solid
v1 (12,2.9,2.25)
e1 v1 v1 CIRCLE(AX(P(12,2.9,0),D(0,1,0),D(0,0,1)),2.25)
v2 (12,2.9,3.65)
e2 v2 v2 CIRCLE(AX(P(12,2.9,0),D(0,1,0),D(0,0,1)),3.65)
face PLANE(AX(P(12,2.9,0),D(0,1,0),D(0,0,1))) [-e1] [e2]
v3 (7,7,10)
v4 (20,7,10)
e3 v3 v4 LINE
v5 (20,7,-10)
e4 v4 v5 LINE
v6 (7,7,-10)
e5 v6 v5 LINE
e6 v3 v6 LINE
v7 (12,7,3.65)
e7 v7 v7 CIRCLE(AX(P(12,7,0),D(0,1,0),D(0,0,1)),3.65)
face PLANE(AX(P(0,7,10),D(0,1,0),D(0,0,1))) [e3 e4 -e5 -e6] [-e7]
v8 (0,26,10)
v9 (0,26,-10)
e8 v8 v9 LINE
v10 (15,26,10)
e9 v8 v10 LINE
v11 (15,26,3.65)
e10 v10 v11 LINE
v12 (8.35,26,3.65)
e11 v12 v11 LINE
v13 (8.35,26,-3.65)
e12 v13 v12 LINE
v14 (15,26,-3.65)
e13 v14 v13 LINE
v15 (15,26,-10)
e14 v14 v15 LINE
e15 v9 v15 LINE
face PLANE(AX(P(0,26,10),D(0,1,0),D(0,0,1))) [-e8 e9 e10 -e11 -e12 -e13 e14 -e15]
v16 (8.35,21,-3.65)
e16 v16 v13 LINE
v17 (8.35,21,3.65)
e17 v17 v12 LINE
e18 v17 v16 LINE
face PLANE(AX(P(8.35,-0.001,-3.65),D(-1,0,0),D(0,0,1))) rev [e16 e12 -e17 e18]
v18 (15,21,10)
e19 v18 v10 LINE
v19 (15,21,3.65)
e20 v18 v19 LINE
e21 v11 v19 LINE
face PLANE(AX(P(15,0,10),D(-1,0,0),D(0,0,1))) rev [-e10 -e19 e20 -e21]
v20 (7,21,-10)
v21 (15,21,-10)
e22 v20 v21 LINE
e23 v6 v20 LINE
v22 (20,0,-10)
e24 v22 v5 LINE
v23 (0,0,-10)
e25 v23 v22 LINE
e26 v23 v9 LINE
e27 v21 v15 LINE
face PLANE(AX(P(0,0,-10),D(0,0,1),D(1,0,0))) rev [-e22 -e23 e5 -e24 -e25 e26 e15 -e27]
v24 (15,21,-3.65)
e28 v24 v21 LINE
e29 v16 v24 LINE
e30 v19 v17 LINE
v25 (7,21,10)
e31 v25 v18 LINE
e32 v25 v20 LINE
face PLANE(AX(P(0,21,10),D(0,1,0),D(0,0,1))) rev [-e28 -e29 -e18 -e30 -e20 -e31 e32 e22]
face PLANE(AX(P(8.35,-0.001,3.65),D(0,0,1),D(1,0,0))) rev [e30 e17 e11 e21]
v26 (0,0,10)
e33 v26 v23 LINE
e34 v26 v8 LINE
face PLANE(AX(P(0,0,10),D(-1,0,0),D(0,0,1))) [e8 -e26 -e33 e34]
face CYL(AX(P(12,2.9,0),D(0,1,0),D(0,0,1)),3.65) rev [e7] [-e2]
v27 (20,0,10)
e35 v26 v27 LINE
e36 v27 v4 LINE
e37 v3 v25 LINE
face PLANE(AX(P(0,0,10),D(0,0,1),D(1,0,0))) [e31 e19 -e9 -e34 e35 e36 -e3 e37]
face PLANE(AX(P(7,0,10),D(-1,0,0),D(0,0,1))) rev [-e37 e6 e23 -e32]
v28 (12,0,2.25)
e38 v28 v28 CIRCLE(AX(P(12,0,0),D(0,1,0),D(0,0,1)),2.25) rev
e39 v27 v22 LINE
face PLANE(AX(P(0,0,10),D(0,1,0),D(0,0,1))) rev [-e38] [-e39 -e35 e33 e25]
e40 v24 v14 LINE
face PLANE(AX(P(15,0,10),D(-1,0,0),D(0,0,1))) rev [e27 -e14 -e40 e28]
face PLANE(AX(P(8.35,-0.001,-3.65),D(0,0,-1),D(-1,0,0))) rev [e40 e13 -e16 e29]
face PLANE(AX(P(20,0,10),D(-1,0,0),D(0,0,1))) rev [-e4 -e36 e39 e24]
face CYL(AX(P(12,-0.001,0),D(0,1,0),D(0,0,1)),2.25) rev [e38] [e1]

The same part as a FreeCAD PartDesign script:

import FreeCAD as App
import Part
import Sketcher

V = App.Vector
Q = App.Units.Quantity

doc = App.newDocument("Part")
body = doc.addObject("PartDesign::Body", "Body")

# Sketch on XY plane
sketch1 = doc.addObject("Sketcher::SketchObject", "Sketch")
body.addObject(sketch1)
sketch1.AttachmentSupport = (doc.XY_Plane, [""])
sketch1.MapMode = "FlatFace"
sketch1.addGeometry(Part.LineSegment(V(0, 0, 0), V(20, 0, 0)), False)
sketch1.addGeometry(Part.LineSegment(V(20, 0, 0), V(20, 7, 0)), False)
sketch1.addGeometry(Part.LineSegment(V(20, 7, 0), V(7, 7, 0)), False)
sketch1.addGeometry(Part.LineSegment(V(7, 7, 0), V(7, 21, 0)), False)
sketch1.addGeometry(Part.LineSegment(V(7, 21, 0), V(15, 21, 0)), False)
sketch1.addGeometry(Part.LineSegment(V(15, 21, 0), V(15, 26, 0)), False)
sketch1.addGeometry(Part.LineSegment(V(15, 26, 0), V(0, 26, 0)), False)
sketch1.addGeometry(Part.LineSegment(V(0, 26, 0), V(0, 0, 0)), False)
sketch1.addConstraint(Sketcher.Constraint("Coincident", 0, 2, 1, 1))
sketch1.addConstraint(Sketcher.Constraint("Coincident", 1, 2, 2, 1))
sketch1.addConstraint(Sketcher.Constraint("Coincident", 2, 2, 3, 1))
sketch1.addConstraint(Sketcher.Constraint("Coincident", 3, 2, 4, 1))
sketch1.addConstraint(Sketcher.Constraint("Coincident", 4, 2, 5, 1))
sketch1.addConstraint(Sketcher.Constraint("Coincident", 5, 2, 6, 1))
sketch1.addConstraint(Sketcher.Constraint("Coincident", 6, 2, 7, 1))
sketch1.addConstraint(Sketcher.Constraint("Coincident", 7, 2, 0, 1))
sketch1.addConstraint(Sketcher.Constraint("Horizontal", 0))
sketch1.addConstraint(Sketcher.Constraint("Vertical", 1))
sketch1.addConstraint(Sketcher.Constraint("Horizontal", 2))
sketch1.addConstraint(Sketcher.Constraint("Vertical", 3))
sketch1.addConstraint(Sketcher.Constraint("Horizontal", 4))
sketch1.addConstraint(Sketcher.Constraint("Vertical", 5))
sketch1.addConstraint(Sketcher.Constraint("Horizontal", 6))
sketch1.addConstraint(Sketcher.Constraint("Vertical", 7))
sketch1.addConstraint(Sketcher.Constraint("Coincident", 7, 2, -1, 1))
sketch1.addConstraint(Sketcher.Constraint("DistanceX", 0, 1, 0, 2, Q("20 mm")))
sketch1.addConstraint(Sketcher.Constraint("DistanceX", 2, 2, 2, 1, Q("13 mm")))
sketch1.addConstraint(Sketcher.Constraint("DistanceX", 4, 1, 4, 2, Q("8 mm")))
sketch1.addConstraint(Sketcher.Constraint("DistanceY", 1, 1, 1, 2, Q("7 mm")))
sketch1.addConstraint(Sketcher.Constraint("DistanceY", 3, 1, 3, 2, Q("14 mm")))
sketch1.addConstraint(Sketcher.Constraint("DistanceY", 5, 1, 5, 2, Q("5 mm")))
pad1 = doc.addObject("PartDesign::Pad", "Pad")
body.addObject(pad1)
pad1.Profile = sketch1
pad1.Length = 20
pad1.Midplane = True

# Sketch on XZ plane
sketch2 = doc.addObject("Sketcher::SketchObject", "Sketch001")
body.addObject(sketch2)
sketch2.AttachmentSupport = (doc.XZ_Plane, [""])
sketch2.MapMode = "FlatFace"
sketch2.AttachmentOffset = App.Placement(V(0, 0, -7), App.Rotation())
sketch2.addGeometry(Part.Circle(V(12, 0, 0), V(0, 0, 1), 3.6), False)
sketch2.addConstraint(Sketcher.Constraint("PointOnObject", 0, 3, -1))
sketch2.addConstraint(Sketcher.Constraint("Diameter", 0, Q("7.3 mm")))
sketch2.addConstraint(Sketcher.Constraint("DistanceX", -1, 1, 0, 3, Q("12 mm")))
pocket1 = doc.addObject("PartDesign::Pocket", "Pocket")
body.addObject(pocket1)
pocket1.Profile = sketch2
pocket1.Length = 4.1
pocket1.Reversed = True

# Sketch on XZ plane
sketch3 = doc.addObject("Sketcher::SketchObject", "Sketch002")
body.addObject(sketch3)
sketch3.AttachmentSupport = (doc.XZ_Plane, [""])
sketch3.MapMode = "FlatFace"
sketch3.AttachmentOffset = App.Placement(V(0, 0, -26), App.Rotation())
sketch3.addGeometry(Part.LineSegment(V(8, -4, 0), V(8, 4, 0)), False)
sketch3.addGeometry(Part.LineSegment(V(8, 4, 0), V(16, 4, 0)), False)
sketch3.addGeometry(Part.LineSegment(V(16, 4, 0), V(16, -4, 0)), False)
sketch3.addGeometry(Part.LineSegment(V(16, -4, 0), V(8, -4, 0)), False)
sketch3.addConstraint(Sketcher.Constraint("Coincident", 0, 2, 1, 1))
sketch3.addConstraint(Sketcher.Constraint("Coincident", 1, 2, 2, 1))
sketch3.addConstraint(Sketcher.Constraint("Coincident", 2, 2, 3, 1))
sketch3.addConstraint(Sketcher.Constraint("Coincident", 3, 2, 0, 1))
sketch3.addConstraint(Sketcher.Constraint("Vertical", 0))
sketch3.addConstraint(Sketcher.Constraint("Horizontal", 1))
sketch3.addConstraint(Sketcher.Constraint("Vertical", 2))
sketch3.addConstraint(Sketcher.Constraint("Horizontal", 3))
sketch3.addConstraint(Sketcher.Constraint("Equal", 3, 0))
sketch3.addConstraint(Sketcher.Constraint("DistanceX", 1, 1, 1, 2, Q("7.3 mm")))
sketch3.addConstraint(Sketcher.Constraint("DistanceX", -1, 1, 0, 2, Q("8.35 mm")))
sketch3.addConstraint(Sketcher.Constraint("DistanceY", -1, 1, 0, 2, Q("3.65 mm")))
pocket2 = doc.addObject("PartDesign::Pocket", "Pocket001")
body.addObject(pocket2)
pocket2.Profile = sketch3
pocket2.Type = "UpToFirst"
pocket2.Reversed = True

# Sketch on XZ plane
sketch4 = doc.addObject("Sketcher::SketchObject", "Sketch003")
body.addObject(sketch4)
sketch4.AttachmentSupport = (doc.XZ_Plane, [""])
sketch4.MapMode = "FlatFace"
sketch4.AttachmentOffset = App.Placement(V(0, 0, -2.9), App.Rotation())
sketch4.addGeometry(Part.Circle(V(12, 0, 0), V(0, 0, 1), 2.2), False)
sketch4.addConstraint(Sketcher.Constraint("PointOnObject", 0, 3, -1))
sketch4.addConstraint(Sketcher.Constraint("Diameter", 0, Q("4.5 mm")))
sketch4.addConstraint(Sketcher.Constraint("DistanceX", -1, 1, 0, 3, Q("12 mm")))
pocket3 = doc.addObject("PartDesign::Pocket", "Pocket002")
body.addObject(pocket3)
pocket3.Profile = sketch4
pocket3.Type = "UpToFirst"
pocket3.Reversed = True

doc.recompute()
